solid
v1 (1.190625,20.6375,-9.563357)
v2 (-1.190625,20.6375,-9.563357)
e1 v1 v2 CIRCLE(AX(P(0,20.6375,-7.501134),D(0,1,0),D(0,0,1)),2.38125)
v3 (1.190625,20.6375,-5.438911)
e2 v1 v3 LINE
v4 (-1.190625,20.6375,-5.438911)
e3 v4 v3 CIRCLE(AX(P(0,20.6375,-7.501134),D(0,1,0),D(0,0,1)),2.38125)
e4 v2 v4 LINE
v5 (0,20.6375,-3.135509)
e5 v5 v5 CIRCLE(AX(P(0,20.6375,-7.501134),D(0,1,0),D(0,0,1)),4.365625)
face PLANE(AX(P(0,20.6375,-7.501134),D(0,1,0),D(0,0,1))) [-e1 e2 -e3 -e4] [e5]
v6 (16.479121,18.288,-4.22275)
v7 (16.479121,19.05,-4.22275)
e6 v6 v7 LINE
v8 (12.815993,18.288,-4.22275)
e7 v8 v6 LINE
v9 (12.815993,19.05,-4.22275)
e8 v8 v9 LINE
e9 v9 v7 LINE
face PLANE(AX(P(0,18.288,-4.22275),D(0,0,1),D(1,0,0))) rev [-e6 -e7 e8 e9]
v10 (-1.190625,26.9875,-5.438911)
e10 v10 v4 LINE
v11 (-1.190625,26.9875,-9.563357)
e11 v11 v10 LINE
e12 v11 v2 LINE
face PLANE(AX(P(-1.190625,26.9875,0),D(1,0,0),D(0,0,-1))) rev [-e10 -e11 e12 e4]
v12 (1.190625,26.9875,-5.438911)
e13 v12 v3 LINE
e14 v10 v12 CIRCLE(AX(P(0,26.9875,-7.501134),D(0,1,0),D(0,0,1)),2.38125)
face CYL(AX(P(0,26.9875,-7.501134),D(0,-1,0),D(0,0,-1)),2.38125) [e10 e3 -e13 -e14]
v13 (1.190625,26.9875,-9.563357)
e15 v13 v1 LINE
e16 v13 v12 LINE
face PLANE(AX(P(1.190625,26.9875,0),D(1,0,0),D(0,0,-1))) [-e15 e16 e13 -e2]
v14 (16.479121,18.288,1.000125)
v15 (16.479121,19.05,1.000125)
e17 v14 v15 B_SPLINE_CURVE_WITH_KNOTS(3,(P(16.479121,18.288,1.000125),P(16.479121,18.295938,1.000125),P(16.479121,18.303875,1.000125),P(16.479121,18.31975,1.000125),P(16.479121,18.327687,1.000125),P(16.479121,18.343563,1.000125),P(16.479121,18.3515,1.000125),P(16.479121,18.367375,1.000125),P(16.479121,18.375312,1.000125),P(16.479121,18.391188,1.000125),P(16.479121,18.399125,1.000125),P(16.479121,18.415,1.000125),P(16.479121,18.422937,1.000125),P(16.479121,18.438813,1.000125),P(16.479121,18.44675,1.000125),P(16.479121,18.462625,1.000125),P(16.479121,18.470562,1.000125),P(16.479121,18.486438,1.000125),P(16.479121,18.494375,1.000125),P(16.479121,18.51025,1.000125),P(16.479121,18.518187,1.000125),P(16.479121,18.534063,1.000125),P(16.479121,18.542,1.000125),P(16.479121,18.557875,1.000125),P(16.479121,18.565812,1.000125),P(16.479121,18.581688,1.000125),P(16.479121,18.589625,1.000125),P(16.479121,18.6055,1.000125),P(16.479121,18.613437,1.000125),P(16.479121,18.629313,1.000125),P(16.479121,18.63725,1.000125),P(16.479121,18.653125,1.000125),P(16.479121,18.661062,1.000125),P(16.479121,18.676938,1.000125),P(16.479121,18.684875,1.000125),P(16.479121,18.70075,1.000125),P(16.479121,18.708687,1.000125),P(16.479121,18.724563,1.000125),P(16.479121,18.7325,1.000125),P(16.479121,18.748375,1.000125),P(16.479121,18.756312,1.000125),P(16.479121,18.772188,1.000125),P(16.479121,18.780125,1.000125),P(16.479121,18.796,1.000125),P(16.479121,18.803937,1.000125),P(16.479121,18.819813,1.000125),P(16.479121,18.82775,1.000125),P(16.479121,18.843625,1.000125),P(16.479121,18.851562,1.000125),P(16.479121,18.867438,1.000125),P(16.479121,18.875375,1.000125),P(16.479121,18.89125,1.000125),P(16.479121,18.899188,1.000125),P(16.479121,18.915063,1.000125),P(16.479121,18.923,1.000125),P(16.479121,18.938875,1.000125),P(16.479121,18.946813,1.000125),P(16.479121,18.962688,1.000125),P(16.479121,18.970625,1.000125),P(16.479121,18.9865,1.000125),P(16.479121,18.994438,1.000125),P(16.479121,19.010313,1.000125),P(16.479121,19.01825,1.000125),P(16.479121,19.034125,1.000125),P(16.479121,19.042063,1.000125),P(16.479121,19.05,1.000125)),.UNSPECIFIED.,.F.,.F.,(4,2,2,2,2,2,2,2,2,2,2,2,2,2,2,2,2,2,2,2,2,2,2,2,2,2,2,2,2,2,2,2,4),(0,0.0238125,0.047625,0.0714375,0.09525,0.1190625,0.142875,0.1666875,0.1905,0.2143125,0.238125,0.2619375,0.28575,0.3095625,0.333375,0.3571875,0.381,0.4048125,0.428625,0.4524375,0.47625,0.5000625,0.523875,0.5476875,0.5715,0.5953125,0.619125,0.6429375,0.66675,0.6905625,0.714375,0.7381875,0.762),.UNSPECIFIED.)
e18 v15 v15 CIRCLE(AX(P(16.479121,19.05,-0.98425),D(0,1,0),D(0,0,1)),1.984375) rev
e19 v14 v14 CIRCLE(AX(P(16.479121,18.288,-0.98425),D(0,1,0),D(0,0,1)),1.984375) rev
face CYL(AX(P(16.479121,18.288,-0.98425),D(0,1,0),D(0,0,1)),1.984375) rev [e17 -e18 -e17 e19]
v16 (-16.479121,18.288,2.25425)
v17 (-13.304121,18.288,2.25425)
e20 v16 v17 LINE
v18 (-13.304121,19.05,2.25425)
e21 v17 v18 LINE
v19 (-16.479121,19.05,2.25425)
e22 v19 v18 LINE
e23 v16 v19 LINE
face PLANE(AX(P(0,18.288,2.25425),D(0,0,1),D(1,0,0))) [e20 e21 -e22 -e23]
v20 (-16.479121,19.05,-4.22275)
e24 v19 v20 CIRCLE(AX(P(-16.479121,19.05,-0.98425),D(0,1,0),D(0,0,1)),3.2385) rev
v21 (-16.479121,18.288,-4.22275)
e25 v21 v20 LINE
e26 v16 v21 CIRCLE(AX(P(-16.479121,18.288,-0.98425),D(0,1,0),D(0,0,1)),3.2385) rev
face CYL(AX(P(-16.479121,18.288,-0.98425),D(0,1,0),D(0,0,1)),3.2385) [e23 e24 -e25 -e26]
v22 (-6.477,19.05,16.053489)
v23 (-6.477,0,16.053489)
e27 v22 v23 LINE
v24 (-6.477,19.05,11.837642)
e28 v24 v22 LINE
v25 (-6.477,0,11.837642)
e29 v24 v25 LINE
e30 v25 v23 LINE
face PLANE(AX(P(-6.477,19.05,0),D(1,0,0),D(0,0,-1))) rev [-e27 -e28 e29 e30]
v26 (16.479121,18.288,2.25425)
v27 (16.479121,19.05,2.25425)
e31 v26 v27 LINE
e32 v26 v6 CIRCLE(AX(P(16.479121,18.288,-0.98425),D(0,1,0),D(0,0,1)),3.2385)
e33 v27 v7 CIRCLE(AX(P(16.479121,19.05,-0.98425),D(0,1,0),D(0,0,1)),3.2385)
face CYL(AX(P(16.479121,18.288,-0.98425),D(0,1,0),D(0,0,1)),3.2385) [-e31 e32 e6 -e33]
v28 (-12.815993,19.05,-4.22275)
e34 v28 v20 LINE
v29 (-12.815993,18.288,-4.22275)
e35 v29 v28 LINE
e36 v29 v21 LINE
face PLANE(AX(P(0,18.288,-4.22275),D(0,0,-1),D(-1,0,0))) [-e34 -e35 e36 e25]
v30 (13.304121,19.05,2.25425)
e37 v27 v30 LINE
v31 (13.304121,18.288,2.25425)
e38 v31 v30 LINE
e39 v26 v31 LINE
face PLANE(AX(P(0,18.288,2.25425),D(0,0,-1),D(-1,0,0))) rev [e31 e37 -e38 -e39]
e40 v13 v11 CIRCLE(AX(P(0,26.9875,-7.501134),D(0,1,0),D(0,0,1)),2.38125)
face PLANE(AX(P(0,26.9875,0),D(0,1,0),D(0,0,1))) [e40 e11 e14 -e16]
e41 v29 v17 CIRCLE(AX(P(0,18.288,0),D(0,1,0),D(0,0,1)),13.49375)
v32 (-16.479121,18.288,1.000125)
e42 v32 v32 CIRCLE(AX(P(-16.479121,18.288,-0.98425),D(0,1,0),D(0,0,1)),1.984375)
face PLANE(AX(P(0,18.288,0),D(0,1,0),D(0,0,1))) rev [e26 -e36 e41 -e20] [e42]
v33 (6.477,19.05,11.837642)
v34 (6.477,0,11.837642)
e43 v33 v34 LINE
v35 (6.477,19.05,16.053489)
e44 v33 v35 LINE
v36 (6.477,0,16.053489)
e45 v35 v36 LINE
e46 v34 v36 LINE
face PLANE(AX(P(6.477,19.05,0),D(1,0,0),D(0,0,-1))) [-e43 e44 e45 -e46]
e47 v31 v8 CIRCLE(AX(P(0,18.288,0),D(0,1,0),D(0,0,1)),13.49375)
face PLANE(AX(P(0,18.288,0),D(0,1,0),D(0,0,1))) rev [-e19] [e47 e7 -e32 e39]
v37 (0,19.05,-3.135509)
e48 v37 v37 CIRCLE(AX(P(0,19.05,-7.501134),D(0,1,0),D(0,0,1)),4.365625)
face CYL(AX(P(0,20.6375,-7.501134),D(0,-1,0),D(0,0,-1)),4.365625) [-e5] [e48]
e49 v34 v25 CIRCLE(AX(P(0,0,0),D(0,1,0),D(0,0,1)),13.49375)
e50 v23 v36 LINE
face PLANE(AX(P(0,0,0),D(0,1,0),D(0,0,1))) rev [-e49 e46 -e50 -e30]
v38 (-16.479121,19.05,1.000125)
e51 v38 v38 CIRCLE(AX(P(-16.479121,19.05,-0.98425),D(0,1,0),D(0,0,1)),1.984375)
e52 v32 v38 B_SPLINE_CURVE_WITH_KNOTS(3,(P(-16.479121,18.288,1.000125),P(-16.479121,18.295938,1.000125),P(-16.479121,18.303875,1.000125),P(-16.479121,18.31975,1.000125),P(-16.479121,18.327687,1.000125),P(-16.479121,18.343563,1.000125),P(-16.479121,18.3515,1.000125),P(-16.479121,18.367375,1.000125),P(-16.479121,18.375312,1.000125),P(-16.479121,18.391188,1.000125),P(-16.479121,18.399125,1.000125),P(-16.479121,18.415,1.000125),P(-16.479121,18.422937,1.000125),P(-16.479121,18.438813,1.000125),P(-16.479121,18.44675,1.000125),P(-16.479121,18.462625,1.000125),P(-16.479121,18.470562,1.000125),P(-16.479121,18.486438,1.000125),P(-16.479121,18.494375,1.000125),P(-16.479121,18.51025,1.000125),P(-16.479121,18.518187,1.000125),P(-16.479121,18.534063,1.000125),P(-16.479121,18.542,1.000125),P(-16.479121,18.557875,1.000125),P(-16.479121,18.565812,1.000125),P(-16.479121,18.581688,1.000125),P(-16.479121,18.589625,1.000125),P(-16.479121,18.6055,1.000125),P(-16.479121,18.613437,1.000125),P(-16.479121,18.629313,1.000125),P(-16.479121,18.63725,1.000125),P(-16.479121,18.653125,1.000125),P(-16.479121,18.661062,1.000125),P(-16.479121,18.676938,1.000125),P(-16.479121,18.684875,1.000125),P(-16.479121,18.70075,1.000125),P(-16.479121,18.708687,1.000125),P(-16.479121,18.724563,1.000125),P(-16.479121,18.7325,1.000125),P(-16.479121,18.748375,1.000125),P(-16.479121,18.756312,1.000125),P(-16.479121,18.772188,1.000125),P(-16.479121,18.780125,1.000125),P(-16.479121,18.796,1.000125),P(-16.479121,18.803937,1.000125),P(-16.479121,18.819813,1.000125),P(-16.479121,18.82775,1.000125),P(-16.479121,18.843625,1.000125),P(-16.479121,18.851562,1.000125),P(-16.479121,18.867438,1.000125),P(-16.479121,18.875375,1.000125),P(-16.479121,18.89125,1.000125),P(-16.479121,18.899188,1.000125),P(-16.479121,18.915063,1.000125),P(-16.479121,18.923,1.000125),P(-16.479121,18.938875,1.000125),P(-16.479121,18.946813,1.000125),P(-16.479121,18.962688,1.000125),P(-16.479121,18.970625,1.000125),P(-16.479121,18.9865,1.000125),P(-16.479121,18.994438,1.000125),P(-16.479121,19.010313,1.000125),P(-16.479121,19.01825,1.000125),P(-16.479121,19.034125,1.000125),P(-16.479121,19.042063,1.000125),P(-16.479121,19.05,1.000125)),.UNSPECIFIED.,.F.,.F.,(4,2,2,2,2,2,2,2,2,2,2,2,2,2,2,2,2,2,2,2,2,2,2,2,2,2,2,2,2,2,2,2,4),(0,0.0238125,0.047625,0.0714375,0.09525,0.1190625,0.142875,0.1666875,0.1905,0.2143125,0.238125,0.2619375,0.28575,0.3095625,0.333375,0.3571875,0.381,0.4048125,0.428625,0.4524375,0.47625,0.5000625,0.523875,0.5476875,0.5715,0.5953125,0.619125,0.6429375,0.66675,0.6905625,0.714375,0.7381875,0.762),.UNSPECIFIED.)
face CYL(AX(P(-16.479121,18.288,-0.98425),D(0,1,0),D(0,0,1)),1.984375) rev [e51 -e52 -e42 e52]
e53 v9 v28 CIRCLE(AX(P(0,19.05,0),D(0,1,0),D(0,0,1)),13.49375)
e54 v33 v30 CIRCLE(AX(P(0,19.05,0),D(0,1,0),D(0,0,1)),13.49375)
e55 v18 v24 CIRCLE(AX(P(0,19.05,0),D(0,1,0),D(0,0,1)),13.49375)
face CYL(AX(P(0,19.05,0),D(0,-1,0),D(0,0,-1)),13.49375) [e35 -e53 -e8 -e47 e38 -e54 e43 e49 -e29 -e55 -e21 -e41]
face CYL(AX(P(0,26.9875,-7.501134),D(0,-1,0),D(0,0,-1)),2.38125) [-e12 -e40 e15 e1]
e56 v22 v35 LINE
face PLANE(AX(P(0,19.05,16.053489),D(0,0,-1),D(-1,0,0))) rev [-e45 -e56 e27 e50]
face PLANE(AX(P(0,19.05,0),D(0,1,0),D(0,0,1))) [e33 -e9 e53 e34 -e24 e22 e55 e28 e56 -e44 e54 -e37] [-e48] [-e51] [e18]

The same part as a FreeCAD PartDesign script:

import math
import FreeCAD as App
import Part
import Sketcher
from FreeCAD import Vector
Q = App.Units.Quantity

doc = App.newDocument("Part")
body = doc.addObject("PartDesign::Body", "Body")

sketch1 = doc.addObject("Sketcher::SketchObject", "Sketch")
body.addObject(sketch1)
sketch1.AttachmentSupport = (doc.XZ_Plane, [""])
sketch1.MapMode = "FlatFace"
sketch1.addGeometry([
    Part.LineSegment(Vector(6.5, 16.1, 0), Vector(6.5, 11.8, 0)),
    Part.ArcOfCircle(Part.Circle(Vector(0, 0, 0), Vector(0, 0, 1), 13.5), math.radians(119), math.radians(421)),
    Part.LineSegment(Vector(-6.5, 11.8, 0), Vector(-6.5, 16.1, 0)),
    Part.LineSegment(Vector(-6.5, 16.1, 0), Vector(6.5, 16.1, 0)),
], False)
sketch1.addConstraint([
    Sketcher.Constraint("Coincident", 0, 2, 1, 2),
    Sketcher.Constraint("Coincident", 1, 1, 2, 1),
    Sketcher.Constraint("Coincident", 2, 2, 3, 1),
    Sketcher.Constraint("Coincident", 3, 2, 0, 1),
    Sketcher.Constraint("Vertical", 0),
    Sketcher.Constraint("Vertical", 2),
    Sketcher.Constraint("Horizontal", 3),
    Sketcher.Constraint("Coincident", 1, 3, -1, 1),
    Sketcher.Constraint("Horizontal", 0, 2, 1, 1),
    Sketcher.Constraint("Radius", 1, Q("0.53125 in")),
    Sketcher.Constraint("DistanceX", 3, 1, 3, 2, Q("0.51 in")),
    Sketcher.Constraint("DistanceY", 0, 2, 0, 1, Q("4.215847 mm")),
])
pad1 = doc.addObject("PartDesign::Pad", "Pad")
body.addObject(pad1)
pad1.Profile = sketch1
pad1.Length = Q("0.75 in")
pad1.Reversed = True

sketch2 = doc.addObject("Sketcher::SketchObject", "Sketch001")
body.addObject(sketch2)
sketch2.AttachmentSupport = (doc.XZ_Plane, [""])
sketch2.MapMode = "FlatFace"
sketch2.AttachmentOffset = App.Placement(Vector(0, 0, -0.72 * 25.4), App.Rotation())
sketch2.addGeometry([
    Part.ArcOfCircle(Part.Circle(Vector(-16.5, -1, 0), Vector(0, 0, 1), 3.2), math.radians(90), math.radians(270)),
    Part.LineSegment(Vector(-16.5, 2.3, 0), Vector(-13.3, 2.3, 0)),
    Part.ArcOfCircle(Part.Circle(Vector(0, 0, 0), Vector(0, 0, 1), 13.5), math.radians(170), math.radians(198)),
    Part.LineSegment(Vector(-12.8, -4.2, 0), Vector(-16.5, -4.2, 0)),
    Part.Circle(Vector(-16.5, -1, 0), Vector(0, 0, 1), 2),
    Part.LineSegment(Vector(16.5, -4.2, 0), Vector(12.8, -4.2, 0)),
    Part.ArcOfCircle(Part.Circle(Vector(0, 0, 0), Vector(0, 0, 1), 13.5), math.radians(-18), math.radians(10)),
    Part.LineSegment(Vector(13.3, 2.3, 0), Vector(16.5, 2.3, 0)),
    Part.ArcOfCircle(Part.Circle(Vector(16.5, -1, 0), Vector(0, 0, 1), 3.2), math.radians(-90), math.radians(90)),
    Part.Circle(Vector(16.5, -1, 0), Vector(0, 0, 1), 2),
], False)
sketch2.addConstraint([
    Sketcher.Constraint("Tangent", 0, 1, 1, 1),
    Sketcher.Constraint("Coincident", 1, 2, 2, 1),
    Sketcher.Constraint("Coincident", 2, 2, 3, 1),
    Sketcher.Constraint("Tangent", 3, 2, 0, 2),
    Sketcher.Constraint("Coincident", 5, 2, 6, 1),
    Sketcher.Constraint("Coincident", 6, 2, 7, 1),
    Sketcher.Constraint("Tangent", 7, 2, 8, 2),
    Sketcher.Constraint("Tangent", 8, 1, 5, 1),
    Sketcher.Constraint("Horizontal", 1),
    Sketcher.Constraint("Horizontal", 3),
    Sketcher.Constraint("Horizontal", 5),
    Sketcher.Constraint("Horizontal", 7),
    Sketcher.Constraint("Coincident", 2, 3, -1, 1),
    Sketcher.Constraint("Coincident", 6, 3, -1, 1),
    Sketcher.Constraint("Coincident", 4, 3, 0, 3),
    Sketcher.Constraint("Coincident", 9, 3, 8, 3),
    Sketcher.Constraint("Equal", 2, 6),
    Sketcher.Constraint("Equal", 0, 8),
    Sketcher.Constraint("Equal", 4, 9),
    Sketcher.Constraint("Symmetric", 0, 3, 8, 3, -2),
    Sketcher.Constraint("Diameter", 4, Q("0.15625 in")),
    Sketcher.Constraint("Radius", 2, Q("0.53125 in")),
    Sketcher.Constraint("Radius", 0, Q("0.1275 in")),
    Sketcher.Constraint("DistanceX", 1, 1, 1, 2, Q("0.125 in")),
    Sketcher.Constraint("DistanceX", 3, 2, 3, 1, Q("3.663129 mm")),
])
pad2 = doc.addObject("PartDesign::Pad", "Pad001")
body.addObject(pad2)
pad2.Profile = sketch2
pad2.Length = Q("0.03 in")
pad2.Reversed = True

sketch3 = doc.addObject("Sketcher::SketchObject", "Sketch002")
body.addObject(sketch3)
sketch3.AttachmentSupport = (doc.XZ_Plane, [""])
sketch3.MapMode = "FlatFace"
sketch3.AttachmentOffset = App.Placement(Vector(0, 0, -0.75 * 25.4), App.Rotation())
sketch3.addGeometry(Part.Circle(Vector(0, -7.5, 0), Vector(0, 0, 1), 4.4), False)
sketch3.addConstraint([
    Sketcher.Constraint("PointOnObject", 0, 3, -2),
    Sketcher.Constraint("Diameter", 0, Q("0.34375 in")),
    Sketcher.Constraint("DistanceY", 0, 3, -1, 1, Q("7.501134 mm")),
])
pad3 = doc.addObject("PartDesign::Pad", "Pad002")
body.addObject(pad3)
pad3.Profile = sketch3
pad3.Length = Q("0.0625 in")
pad3.Reversed = True

sketch4 = doc.addObject("Sketcher::SketchObject", "Sketch003")
body.addObject(sketch4)
sketch4.AttachmentSupport = (doc.XZ_Plane, [""])
sketch4.MapMode = "FlatFace"
sketch4.AttachmentOffset = App.Placement(Vector(0, 0, -0.8125 * 25.4), App.Rotation())
sketch4.addGeometry([
    Part.ArcOfCircle(Part.Circle(Vector(0, -7.5, 0), Vector(0, 0, 1), 2.4), math.radians(-120), math.radians(-60)),
    Part.LineSegment(Vector(-1.2, -9.6, 0), Vector(-1.2, -5.4, 0)),
    Part.ArcOfCircle(Part.Circle(Vector(0, -7.5, 0), Vector(0, 0, 1), 2.4), math.radians(60), math.radians(120)),
    Part.LineSegment(Vector(1.2, -5.4, 0), Vector(1.2, -9.6, 0)),
], False)
sketch4.addConstraint([
    Sketcher.Constraint("Coincident", 0, 1, 1, 1),
    Sketcher.Constraint("Coincident", 1, 2, 2, 2),
    Sketcher.Constraint("Coincident", 2, 1, 3, 1),
    Sketcher.Constraint("Coincident", 3, 2, 0, 2),
    Sketcher.Constraint("Vertical", 1),
    Sketcher.Constraint("Vertical", 3),
    Sketcher.Constraint("Coincident", 2, 3, 0, 3),
    Sketcher.Constraint("Equal", 0, 2),
    Sketcher.Constraint("Symmetric", 1, 2, 2, 1, -2),
    Sketcher.Constraint("Radius", 0, Q("0.09375 in")),
    Sketcher.Constraint("DistanceX", 0, 1, -1, 1, Q("0.046875 in")),
    Sketcher.Constraint("DistanceY", 1, 2, -1, 1, Q("5.438911 mm")),
])
pad4 = doc.addObject("PartDesign::Pad", "Pad003")
body.addObject(pad4)
pad4.Profile = sketch4
pad4.Length = Q("0.25 in")
pad4.Reversed = True

doc.recompute()
